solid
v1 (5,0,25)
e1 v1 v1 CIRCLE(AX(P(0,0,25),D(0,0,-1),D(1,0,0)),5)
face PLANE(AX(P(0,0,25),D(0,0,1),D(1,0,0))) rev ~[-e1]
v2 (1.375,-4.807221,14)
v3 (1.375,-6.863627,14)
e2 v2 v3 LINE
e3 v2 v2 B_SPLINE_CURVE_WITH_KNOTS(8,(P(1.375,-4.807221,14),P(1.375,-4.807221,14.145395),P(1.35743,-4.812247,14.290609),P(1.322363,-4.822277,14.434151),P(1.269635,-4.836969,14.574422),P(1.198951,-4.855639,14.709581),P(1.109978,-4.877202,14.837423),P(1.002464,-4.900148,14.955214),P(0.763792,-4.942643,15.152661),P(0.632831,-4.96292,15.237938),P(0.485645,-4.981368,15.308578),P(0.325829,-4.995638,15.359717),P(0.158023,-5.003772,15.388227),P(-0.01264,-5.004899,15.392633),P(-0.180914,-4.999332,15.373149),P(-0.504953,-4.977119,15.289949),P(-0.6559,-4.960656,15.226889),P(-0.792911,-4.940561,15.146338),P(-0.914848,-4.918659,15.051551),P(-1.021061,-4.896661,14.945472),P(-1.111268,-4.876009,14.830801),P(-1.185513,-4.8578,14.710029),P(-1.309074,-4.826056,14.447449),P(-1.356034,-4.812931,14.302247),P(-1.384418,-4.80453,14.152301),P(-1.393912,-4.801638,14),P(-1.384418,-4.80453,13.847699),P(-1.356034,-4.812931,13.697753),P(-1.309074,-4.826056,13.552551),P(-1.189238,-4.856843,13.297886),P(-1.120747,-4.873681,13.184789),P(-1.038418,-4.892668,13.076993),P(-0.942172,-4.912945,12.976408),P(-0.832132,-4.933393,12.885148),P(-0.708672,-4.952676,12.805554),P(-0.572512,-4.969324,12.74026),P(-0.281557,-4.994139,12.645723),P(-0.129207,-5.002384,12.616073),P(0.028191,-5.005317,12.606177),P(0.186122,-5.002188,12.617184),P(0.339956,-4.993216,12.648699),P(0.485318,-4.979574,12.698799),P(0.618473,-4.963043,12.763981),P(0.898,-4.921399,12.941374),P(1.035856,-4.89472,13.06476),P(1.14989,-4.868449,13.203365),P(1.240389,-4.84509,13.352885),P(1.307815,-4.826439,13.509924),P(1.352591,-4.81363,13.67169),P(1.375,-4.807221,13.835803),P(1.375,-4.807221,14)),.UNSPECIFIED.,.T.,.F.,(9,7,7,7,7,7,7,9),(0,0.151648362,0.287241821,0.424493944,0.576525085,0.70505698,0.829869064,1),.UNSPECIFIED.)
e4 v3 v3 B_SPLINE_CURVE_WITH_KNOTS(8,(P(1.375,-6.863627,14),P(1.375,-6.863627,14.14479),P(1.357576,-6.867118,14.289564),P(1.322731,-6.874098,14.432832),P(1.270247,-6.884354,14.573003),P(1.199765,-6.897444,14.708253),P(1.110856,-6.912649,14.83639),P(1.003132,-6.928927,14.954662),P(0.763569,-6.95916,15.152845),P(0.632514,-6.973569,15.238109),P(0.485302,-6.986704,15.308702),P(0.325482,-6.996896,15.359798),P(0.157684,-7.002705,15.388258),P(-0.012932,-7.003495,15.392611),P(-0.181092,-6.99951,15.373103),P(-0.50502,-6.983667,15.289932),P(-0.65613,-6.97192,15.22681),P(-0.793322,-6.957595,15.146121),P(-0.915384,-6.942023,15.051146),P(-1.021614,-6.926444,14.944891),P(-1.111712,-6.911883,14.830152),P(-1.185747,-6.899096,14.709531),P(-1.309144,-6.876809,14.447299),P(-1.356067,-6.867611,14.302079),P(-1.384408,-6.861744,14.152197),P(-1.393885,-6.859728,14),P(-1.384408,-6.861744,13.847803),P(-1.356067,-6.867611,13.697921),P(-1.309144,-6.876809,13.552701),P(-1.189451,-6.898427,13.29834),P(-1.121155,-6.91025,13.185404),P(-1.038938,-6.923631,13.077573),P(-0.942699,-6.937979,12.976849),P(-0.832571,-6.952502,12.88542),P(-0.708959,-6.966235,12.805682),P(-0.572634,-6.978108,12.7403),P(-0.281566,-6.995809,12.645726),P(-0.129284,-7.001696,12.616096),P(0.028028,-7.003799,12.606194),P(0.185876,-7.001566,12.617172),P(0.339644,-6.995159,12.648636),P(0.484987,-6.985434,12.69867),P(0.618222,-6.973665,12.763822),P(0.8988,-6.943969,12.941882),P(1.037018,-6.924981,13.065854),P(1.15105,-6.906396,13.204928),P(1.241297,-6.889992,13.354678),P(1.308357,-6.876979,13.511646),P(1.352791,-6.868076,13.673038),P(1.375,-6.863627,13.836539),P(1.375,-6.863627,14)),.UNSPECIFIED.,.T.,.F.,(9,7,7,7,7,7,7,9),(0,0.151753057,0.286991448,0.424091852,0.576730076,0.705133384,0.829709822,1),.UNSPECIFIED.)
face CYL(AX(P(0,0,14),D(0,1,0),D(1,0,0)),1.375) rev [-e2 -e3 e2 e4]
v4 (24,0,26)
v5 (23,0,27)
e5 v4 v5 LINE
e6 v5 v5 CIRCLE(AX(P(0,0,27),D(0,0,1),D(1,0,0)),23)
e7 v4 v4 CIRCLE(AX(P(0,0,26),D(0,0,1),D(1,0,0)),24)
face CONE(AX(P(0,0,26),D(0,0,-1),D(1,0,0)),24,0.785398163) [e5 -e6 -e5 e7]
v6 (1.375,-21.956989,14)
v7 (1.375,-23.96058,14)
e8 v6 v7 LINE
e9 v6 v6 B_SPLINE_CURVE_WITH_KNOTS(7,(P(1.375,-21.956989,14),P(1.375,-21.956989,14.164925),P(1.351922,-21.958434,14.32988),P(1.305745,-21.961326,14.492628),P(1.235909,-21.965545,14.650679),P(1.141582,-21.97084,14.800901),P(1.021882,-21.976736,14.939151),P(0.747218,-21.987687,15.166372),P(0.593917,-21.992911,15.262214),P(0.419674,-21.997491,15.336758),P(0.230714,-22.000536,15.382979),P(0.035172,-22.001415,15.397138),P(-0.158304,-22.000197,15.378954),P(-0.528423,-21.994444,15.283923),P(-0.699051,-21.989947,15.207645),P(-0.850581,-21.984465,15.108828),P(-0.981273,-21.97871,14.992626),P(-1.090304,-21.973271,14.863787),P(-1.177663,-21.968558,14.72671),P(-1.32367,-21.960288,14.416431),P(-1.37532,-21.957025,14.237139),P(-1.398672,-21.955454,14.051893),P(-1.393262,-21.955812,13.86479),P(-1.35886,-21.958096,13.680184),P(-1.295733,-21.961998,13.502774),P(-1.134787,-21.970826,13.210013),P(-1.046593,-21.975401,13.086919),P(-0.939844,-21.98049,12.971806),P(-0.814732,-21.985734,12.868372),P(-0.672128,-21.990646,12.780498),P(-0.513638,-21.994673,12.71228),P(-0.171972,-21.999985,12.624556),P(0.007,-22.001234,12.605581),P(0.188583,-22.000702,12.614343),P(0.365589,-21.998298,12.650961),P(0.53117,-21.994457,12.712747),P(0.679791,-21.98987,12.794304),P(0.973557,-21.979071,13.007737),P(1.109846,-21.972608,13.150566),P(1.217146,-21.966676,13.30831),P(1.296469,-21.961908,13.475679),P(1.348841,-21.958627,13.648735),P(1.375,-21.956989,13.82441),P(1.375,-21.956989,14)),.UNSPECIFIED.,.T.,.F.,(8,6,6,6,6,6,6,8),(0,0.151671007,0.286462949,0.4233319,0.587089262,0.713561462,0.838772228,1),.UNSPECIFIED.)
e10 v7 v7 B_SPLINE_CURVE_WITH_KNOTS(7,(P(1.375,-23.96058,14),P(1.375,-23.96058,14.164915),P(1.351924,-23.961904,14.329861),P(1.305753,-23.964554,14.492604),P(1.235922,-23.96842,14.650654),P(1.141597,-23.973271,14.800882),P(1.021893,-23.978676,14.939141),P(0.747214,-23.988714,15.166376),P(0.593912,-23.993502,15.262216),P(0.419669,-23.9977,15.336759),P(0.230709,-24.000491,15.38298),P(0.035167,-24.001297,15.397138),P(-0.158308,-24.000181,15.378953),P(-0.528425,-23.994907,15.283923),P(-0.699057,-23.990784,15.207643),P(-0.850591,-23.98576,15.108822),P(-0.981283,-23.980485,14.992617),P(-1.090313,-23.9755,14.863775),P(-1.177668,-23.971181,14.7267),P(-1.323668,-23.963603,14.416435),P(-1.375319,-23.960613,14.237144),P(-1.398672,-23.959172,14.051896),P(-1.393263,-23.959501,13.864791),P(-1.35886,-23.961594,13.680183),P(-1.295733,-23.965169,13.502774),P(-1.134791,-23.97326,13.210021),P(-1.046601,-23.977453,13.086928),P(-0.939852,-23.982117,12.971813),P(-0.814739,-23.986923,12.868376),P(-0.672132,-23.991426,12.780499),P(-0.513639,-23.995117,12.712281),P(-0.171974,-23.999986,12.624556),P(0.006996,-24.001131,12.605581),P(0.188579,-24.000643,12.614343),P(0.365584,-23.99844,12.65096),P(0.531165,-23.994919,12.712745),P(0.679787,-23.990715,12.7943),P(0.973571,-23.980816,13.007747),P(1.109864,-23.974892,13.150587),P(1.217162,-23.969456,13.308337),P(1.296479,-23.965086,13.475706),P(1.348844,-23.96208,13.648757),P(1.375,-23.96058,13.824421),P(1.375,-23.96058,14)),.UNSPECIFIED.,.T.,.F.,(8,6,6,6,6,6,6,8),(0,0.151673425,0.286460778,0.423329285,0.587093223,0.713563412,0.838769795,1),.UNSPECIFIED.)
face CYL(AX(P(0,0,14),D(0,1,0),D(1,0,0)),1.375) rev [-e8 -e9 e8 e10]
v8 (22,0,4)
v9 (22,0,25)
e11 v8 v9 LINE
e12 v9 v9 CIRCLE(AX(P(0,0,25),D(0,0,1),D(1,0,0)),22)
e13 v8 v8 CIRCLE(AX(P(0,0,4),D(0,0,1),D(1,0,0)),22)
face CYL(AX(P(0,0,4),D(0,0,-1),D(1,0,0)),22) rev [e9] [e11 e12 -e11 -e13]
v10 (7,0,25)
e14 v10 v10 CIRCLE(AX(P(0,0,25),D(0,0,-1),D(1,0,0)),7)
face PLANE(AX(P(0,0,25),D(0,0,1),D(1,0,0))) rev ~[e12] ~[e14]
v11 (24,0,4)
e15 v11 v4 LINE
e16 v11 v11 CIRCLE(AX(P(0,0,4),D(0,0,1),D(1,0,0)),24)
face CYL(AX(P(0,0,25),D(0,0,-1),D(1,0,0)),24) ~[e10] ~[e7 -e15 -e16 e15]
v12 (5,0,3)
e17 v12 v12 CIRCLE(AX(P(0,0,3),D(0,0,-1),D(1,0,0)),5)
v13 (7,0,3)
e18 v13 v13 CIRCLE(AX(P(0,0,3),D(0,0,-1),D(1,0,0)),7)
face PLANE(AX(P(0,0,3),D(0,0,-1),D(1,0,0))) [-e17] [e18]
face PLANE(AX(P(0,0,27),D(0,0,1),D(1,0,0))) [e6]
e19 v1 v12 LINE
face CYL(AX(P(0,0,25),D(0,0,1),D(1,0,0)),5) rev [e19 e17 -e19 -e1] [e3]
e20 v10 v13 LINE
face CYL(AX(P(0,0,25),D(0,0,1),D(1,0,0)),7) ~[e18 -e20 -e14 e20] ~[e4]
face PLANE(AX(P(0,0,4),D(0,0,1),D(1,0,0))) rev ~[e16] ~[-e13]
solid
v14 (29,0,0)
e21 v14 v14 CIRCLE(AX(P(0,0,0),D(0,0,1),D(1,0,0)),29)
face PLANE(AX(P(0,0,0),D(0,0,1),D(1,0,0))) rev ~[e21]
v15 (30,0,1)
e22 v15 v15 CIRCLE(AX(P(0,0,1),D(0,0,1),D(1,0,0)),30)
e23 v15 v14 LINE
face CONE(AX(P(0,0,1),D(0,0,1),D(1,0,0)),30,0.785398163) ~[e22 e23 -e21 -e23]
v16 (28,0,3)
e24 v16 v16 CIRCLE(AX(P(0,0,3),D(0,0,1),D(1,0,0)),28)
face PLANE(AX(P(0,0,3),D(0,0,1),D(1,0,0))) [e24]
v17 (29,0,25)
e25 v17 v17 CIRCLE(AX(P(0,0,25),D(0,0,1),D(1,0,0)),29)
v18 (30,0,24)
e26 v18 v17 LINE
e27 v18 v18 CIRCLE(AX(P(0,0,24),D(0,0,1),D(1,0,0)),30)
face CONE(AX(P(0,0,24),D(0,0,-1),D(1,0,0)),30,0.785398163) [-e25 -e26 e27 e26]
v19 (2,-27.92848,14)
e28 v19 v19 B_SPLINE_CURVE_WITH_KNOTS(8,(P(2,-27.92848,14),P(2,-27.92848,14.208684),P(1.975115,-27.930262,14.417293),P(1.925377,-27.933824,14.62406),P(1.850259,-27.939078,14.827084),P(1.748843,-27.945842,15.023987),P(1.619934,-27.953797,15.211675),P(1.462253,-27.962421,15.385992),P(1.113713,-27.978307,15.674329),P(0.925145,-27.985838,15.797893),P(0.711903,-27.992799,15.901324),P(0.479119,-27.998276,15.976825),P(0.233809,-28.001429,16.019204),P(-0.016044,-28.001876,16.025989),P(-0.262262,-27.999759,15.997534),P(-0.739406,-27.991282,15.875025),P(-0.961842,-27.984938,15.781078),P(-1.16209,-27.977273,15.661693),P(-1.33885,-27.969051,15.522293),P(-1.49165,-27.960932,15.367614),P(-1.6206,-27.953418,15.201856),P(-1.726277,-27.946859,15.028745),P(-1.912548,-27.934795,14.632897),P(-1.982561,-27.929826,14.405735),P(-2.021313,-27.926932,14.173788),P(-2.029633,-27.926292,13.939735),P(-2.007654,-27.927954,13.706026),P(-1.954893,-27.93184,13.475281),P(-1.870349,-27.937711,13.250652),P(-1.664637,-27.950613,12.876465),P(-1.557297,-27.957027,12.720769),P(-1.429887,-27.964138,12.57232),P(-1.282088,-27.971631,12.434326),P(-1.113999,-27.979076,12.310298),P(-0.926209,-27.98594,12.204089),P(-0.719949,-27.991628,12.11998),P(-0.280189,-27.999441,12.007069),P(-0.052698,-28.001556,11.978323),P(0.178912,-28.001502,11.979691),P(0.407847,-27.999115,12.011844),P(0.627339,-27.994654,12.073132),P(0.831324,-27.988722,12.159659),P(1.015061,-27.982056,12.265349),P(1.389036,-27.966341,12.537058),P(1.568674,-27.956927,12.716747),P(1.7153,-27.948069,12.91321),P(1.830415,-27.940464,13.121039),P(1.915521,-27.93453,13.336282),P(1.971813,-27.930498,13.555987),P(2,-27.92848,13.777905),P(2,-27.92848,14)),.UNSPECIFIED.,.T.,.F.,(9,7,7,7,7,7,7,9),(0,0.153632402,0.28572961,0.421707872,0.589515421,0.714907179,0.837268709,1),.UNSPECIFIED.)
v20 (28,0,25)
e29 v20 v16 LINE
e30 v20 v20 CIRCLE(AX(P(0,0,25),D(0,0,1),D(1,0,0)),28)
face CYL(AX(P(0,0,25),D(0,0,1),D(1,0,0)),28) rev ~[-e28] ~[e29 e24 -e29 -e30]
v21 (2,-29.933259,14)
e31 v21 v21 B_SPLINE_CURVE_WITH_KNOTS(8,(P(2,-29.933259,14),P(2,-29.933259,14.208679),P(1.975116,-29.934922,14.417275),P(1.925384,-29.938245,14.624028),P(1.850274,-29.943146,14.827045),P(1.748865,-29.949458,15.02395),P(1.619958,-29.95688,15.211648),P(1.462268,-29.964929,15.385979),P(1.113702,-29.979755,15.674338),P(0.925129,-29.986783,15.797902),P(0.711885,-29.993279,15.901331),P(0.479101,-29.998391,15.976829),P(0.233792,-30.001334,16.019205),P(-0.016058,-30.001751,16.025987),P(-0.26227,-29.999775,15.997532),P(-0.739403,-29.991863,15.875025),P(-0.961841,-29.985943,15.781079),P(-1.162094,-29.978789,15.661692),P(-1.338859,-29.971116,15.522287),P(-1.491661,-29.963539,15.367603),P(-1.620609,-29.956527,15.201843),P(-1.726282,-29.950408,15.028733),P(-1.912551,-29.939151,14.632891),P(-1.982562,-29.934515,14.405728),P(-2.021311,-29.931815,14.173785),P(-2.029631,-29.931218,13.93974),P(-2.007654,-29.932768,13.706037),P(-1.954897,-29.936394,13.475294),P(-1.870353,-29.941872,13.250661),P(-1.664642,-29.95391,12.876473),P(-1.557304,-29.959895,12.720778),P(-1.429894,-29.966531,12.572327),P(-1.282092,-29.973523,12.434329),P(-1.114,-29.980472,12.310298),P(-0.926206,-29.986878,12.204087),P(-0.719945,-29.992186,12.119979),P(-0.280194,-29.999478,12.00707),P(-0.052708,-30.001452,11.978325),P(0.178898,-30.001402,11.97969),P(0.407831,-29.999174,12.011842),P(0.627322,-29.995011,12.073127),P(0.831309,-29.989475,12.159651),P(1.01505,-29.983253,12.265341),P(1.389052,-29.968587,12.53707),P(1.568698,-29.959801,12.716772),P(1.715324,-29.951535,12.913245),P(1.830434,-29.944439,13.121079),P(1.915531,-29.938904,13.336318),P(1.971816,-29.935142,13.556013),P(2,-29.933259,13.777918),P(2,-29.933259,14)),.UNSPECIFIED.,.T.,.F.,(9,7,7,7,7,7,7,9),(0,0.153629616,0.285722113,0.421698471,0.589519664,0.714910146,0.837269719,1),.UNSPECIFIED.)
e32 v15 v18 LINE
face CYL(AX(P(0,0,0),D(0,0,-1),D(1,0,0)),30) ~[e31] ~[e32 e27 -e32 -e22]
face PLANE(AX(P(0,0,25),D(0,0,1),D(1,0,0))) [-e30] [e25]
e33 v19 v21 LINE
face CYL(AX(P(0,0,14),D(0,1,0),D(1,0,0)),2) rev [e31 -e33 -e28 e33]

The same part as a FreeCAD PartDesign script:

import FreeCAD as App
import Part
import Sketcher
from FreeCAD import Vector
Q = App.Units.Quantity


def edges_at(feature, points):
    """Names of the edges that pass closest to the given points."""
    edges = feature.Shape.Edges
    near = lambda p: min(range(len(edges)), key=lambda i: edges[i].distToShape(Part.Vertex(*p))[0])
    return sorted({f"Edge{near(p) + 1}" for p in points})

doc = App.newDocument("Part")
params = doc.addObject("Spreadsheet::Sheet", "Params")
for row, (alias, value) in enumerate([
    ("sketch1_diameter", "60 mm"),
    ("pad1_length", "25 mm"),
    ("sketch2_diameter", "56 mm"),
    ("pocket1_length", "22 mm"),
    ("chamfer_size", "1 mm"),
    ("sketch3_diameter", "48 mm"),
    ("sketch3_diameter2", "44 mm"),
    ("pad2_length", "21 mm"),
    ("sketch4_diameter", "48 mm"),
    ("pad3_length", "2 mm"),
    ("sketch5_diameter", "14 mm"),
    ("sketch5_diameter2", "10 mm"),
    ("pad4_length", "22 mm"),
    ("chamfer2_size", "1 mm"),
    ("sketch6_diameter", "2.75 mm"),
    ("pad5_length", "30.001 mm"),
    ("sketch7_diameter", "4 mm"),
], start=1):
    params.set(f"A{row}", alias)
    params.set(f"B{row}", "=" + value)
    params.setAlias(f"B{row}", alias)

body = doc.addObject("PartDesign::Body", "Body")

sketch1 = body.newObject("Sketcher::SketchObject", "Sketch")
sketch1.AttachmentSupport = (doc.getObject("XY_Plane"), [""])
sketch1.MapMode = "FlatFace"
sketch1.addGeometry(Part.Circle(Vector(0, 0, 0), Vector(0, 0, 1), 30), False)
sketch1.addConstraint([
    Sketcher.Constraint("Coincident", 0, 3, -1, 1),
    Sketcher.Constraint("Diameter", 0, Q("60 mm")),
])
sketch1.setExpression("Constraints[1]", "Params.sketch1_diameter")
pad1 = body.newObject("PartDesign::Pad", "Pad")
pad1.Profile = sketch1
pad1.setExpression("Length", "Params.pad1_length")

sketch2 = body.newObject("Sketcher::SketchObject", "Sketch001")
sketch2.AttachmentSupport = (doc.getObject("XY_Plane"), [""])
sketch2.MapMode = "FlatFace"
sketch2.AttachmentOffset = App.Placement(Vector(0, 0, 25), App.Rotation())
sketch2.addGeometry(Part.Circle(Vector(0, 0, 0), Vector(0, 0, 1), 28), False)
sketch2.addConstraint([
    Sketcher.Constraint("Coincident", 0, 3, -1, 1),
    Sketcher.Constraint("Diameter", 0, Q("56 mm")),
])
sketch2.setExpression("Constraints[1]", "Params.sketch2_diameter")
pocket1 = body.newObject("PartDesign::Pocket", "Pocket")
pocket1.Profile = sketch2
pocket1.setExpression("Length", "Params.pocket1_length")
doc.recompute()

chamfer = body.newObject("PartDesign::Chamfer", "Chamfer")
chamfer.Base = (pocket1, edges_at(pocket1, [(-30, 0, 0), (-30, 0, 25)]))
chamfer.setExpression("Size", "Params.chamfer_size")
body2 = doc.addObject("PartDesign::Body", "Body001")

sketch3 = body2.newObject("Sketcher::SketchObject", "Sketch002")
sketch3.AttachmentSupport = (doc.getObject("XY_Plane001"), [""])
sketch3.MapMode = "FlatFace"
sketch3.AttachmentOffset = App.Placement(Vector(0, 0, 4), App.Rotation())
sketch3.addGeometry([
    Part.Circle(Vector(0, 0, 0), Vector(0, 0, 1), 24),
    Part.Circle(Vector(0, 0, 0), Vector(0, 0, 1), 22),
], False)
sketch3.addConstraint([
    Sketcher.Constraint("Coincident", 0, 3, -1, 1),
    Sketcher.Constraint("Coincident", 1, 3, -1, 1),
    Sketcher.Constraint("Diameter", 0, Q("48 mm")),
    Sketcher.Constraint("Diameter", 1, Q("44 mm")),
])
sketch3.setExpression("Constraints[2]", "Params.sketch3_diameter")
sketch3.setExpression("Constraints[3]", "Params.sketch3_diameter2")
pad2 = body2.newObject("PartDesign::Pad", "Pad001")
pad2.Profile = sketch3
pad2.setExpression("Length", "Params.pad2_length")

sketch4 = body2.newObject("Sketcher::SketchObject", "Sketch003")
sketch4.AttachmentSupport = (doc.getObject("XY_Plane001"), [""])
sketch4.MapMode = "FlatFace"
sketch4.AttachmentOffset = App.Placement(Vector(0, 0, 25), App.Rotation())
sketch4.addGeometry(Part.Circle(Vector(0, 0, 0), Vector(0, 0, 1), 24), False)
sketch4.addConstraint([
    Sketcher.Constraint("Coincident", 0, 3, -1, 1),
    Sketcher.Constraint("Diameter", 0, Q("48 mm")),
])
sketch4.setExpression("Constraints[1]", "Params.sketch4_diameter")
pad3 = body2.newObject("PartDesign::Pad", "Pad002")
pad3.Profile = sketch4
pad3.setExpression("Length", "Params.pad3_length")

sketch5 = body2.newObject("Sketcher::SketchObject", "Sketch004")
sketch5.AttachmentSupport = (doc.getObject("XY_Plane001"), [""])
sketch5.MapMode = "FlatFace"
sketch5.AttachmentOffset = App.Placement(Vector(0, 0, 25), App.Rotation())
sketch5.addGeometry([
    Part.Circle(Vector(0, 0, 0), Vector(0, 0, 1), 7),
    Part.Circle(Vector(0, 0, 0), Vector(0, 0, 1), 5),
], False)
sketch5.addConstraint([
    Sketcher.Constraint("Coincident", 0, 3, -1, 1),
    Sketcher.Constraint("Coincident", 1, 3, -1, 1),
    Sketcher.Constraint("Diameter", 0, Q("14 mm")),
    Sketcher.Constraint("Diameter", 1, Q("10 mm")),
])
sketch5.setExpression("Constraints[2]", "Params.sketch5_diameter")
sketch5.setExpression("Constraints[3]", "Params.sketch5_diameter2")
pad4 = body2.newObject("PartDesign::Pad", "Pad003")
pad4.Profile = sketch5
pad4.setExpression("Length", "Params.pad4_length")
pad4.Reversed = True
doc.recompute()

chamfer2 = body2.newObject("PartDesign::Chamfer", "Chamfer001")
chamfer2.Base = (pad4, edges_at(pad4, [(-24, 0, 27)]))
chamfer2.setExpression("Size", "Params.chamfer2_size")
body3 = doc.addObject("PartDesign::Body", "Body002")

sketch6 = body3.newObject("Sketcher::SketchObject", "Sketch005")
sketch6.AttachmentSupport = (doc.getObject("XZ_Plane002"), [""])
sketch6.MapMode = "FlatFace"
sketch6.addGeometry(Part.Circle(Vector(0, 14, 0), Vector(0, 0, 1), 1.4), False)
sketch6.addConstraint([
    Sketcher.Constraint("PointOnObject", 0, 3, -2),
    Sketcher.Constraint("Diameter", 0, Q("2.75 mm")),
    Sketcher.Constraint("DistanceY", -1, 1, 0, 3, Q("14 mm")),
])
sketch6.setExpression("Constraints[1]", "Params.sketch6_diameter")
pad5 = body3.newObject("PartDesign::Pad", "Pad004")
pad5.Profile = sketch6
pad5.setExpression("Length", "Params.pad5_length")
doc.recompute()

body4 = doc.addObject("PartDesign::Body", "Body003")
body4.BaseFeature = body3
boolean = body.newObject("PartDesign::Boolean", "Boolean")
boolean.Type = "Cut"
boolean.addObjects([body4])
doc.recompute()

sketch7 = body.newObject("Sketcher::SketchObject", "Sketch006")
sketch7.AttachmentSupport = (doc.getObject("XZ_Plane"), [""])
sketch7.MapMode = "FlatFace"
sketch7.addGeometry(Part.Circle(Vector(0, 14, 0), Vector(0, 0, 1), 2), False)
sketch7.addConstraint([
    Sketcher.Constraint("PointOnObject", 0, 3, -2),
    Sketcher.Constraint("Diameter", 0, Q("4 mm")),
    Sketcher.Constraint("DistanceY", -1, 1, 0, 3, Q("14 mm")),
])
sketch7.setExpression("Constraints[1]", "Params.sketch7_diameter")
pocket2 = body.newObject("PartDesign::Pocket", "Pocket001")
pocket2.Profile = sketch7
pocket2.Type = "ThroughAll"
pocket2.Reversed = True
doc.recompute()

boolean2 = body2.newObject("PartDesign::Boolean", "Boolean001")
boolean2.Type = "Cut"
boolean2.addObjects([body3])

doc.recompute()
